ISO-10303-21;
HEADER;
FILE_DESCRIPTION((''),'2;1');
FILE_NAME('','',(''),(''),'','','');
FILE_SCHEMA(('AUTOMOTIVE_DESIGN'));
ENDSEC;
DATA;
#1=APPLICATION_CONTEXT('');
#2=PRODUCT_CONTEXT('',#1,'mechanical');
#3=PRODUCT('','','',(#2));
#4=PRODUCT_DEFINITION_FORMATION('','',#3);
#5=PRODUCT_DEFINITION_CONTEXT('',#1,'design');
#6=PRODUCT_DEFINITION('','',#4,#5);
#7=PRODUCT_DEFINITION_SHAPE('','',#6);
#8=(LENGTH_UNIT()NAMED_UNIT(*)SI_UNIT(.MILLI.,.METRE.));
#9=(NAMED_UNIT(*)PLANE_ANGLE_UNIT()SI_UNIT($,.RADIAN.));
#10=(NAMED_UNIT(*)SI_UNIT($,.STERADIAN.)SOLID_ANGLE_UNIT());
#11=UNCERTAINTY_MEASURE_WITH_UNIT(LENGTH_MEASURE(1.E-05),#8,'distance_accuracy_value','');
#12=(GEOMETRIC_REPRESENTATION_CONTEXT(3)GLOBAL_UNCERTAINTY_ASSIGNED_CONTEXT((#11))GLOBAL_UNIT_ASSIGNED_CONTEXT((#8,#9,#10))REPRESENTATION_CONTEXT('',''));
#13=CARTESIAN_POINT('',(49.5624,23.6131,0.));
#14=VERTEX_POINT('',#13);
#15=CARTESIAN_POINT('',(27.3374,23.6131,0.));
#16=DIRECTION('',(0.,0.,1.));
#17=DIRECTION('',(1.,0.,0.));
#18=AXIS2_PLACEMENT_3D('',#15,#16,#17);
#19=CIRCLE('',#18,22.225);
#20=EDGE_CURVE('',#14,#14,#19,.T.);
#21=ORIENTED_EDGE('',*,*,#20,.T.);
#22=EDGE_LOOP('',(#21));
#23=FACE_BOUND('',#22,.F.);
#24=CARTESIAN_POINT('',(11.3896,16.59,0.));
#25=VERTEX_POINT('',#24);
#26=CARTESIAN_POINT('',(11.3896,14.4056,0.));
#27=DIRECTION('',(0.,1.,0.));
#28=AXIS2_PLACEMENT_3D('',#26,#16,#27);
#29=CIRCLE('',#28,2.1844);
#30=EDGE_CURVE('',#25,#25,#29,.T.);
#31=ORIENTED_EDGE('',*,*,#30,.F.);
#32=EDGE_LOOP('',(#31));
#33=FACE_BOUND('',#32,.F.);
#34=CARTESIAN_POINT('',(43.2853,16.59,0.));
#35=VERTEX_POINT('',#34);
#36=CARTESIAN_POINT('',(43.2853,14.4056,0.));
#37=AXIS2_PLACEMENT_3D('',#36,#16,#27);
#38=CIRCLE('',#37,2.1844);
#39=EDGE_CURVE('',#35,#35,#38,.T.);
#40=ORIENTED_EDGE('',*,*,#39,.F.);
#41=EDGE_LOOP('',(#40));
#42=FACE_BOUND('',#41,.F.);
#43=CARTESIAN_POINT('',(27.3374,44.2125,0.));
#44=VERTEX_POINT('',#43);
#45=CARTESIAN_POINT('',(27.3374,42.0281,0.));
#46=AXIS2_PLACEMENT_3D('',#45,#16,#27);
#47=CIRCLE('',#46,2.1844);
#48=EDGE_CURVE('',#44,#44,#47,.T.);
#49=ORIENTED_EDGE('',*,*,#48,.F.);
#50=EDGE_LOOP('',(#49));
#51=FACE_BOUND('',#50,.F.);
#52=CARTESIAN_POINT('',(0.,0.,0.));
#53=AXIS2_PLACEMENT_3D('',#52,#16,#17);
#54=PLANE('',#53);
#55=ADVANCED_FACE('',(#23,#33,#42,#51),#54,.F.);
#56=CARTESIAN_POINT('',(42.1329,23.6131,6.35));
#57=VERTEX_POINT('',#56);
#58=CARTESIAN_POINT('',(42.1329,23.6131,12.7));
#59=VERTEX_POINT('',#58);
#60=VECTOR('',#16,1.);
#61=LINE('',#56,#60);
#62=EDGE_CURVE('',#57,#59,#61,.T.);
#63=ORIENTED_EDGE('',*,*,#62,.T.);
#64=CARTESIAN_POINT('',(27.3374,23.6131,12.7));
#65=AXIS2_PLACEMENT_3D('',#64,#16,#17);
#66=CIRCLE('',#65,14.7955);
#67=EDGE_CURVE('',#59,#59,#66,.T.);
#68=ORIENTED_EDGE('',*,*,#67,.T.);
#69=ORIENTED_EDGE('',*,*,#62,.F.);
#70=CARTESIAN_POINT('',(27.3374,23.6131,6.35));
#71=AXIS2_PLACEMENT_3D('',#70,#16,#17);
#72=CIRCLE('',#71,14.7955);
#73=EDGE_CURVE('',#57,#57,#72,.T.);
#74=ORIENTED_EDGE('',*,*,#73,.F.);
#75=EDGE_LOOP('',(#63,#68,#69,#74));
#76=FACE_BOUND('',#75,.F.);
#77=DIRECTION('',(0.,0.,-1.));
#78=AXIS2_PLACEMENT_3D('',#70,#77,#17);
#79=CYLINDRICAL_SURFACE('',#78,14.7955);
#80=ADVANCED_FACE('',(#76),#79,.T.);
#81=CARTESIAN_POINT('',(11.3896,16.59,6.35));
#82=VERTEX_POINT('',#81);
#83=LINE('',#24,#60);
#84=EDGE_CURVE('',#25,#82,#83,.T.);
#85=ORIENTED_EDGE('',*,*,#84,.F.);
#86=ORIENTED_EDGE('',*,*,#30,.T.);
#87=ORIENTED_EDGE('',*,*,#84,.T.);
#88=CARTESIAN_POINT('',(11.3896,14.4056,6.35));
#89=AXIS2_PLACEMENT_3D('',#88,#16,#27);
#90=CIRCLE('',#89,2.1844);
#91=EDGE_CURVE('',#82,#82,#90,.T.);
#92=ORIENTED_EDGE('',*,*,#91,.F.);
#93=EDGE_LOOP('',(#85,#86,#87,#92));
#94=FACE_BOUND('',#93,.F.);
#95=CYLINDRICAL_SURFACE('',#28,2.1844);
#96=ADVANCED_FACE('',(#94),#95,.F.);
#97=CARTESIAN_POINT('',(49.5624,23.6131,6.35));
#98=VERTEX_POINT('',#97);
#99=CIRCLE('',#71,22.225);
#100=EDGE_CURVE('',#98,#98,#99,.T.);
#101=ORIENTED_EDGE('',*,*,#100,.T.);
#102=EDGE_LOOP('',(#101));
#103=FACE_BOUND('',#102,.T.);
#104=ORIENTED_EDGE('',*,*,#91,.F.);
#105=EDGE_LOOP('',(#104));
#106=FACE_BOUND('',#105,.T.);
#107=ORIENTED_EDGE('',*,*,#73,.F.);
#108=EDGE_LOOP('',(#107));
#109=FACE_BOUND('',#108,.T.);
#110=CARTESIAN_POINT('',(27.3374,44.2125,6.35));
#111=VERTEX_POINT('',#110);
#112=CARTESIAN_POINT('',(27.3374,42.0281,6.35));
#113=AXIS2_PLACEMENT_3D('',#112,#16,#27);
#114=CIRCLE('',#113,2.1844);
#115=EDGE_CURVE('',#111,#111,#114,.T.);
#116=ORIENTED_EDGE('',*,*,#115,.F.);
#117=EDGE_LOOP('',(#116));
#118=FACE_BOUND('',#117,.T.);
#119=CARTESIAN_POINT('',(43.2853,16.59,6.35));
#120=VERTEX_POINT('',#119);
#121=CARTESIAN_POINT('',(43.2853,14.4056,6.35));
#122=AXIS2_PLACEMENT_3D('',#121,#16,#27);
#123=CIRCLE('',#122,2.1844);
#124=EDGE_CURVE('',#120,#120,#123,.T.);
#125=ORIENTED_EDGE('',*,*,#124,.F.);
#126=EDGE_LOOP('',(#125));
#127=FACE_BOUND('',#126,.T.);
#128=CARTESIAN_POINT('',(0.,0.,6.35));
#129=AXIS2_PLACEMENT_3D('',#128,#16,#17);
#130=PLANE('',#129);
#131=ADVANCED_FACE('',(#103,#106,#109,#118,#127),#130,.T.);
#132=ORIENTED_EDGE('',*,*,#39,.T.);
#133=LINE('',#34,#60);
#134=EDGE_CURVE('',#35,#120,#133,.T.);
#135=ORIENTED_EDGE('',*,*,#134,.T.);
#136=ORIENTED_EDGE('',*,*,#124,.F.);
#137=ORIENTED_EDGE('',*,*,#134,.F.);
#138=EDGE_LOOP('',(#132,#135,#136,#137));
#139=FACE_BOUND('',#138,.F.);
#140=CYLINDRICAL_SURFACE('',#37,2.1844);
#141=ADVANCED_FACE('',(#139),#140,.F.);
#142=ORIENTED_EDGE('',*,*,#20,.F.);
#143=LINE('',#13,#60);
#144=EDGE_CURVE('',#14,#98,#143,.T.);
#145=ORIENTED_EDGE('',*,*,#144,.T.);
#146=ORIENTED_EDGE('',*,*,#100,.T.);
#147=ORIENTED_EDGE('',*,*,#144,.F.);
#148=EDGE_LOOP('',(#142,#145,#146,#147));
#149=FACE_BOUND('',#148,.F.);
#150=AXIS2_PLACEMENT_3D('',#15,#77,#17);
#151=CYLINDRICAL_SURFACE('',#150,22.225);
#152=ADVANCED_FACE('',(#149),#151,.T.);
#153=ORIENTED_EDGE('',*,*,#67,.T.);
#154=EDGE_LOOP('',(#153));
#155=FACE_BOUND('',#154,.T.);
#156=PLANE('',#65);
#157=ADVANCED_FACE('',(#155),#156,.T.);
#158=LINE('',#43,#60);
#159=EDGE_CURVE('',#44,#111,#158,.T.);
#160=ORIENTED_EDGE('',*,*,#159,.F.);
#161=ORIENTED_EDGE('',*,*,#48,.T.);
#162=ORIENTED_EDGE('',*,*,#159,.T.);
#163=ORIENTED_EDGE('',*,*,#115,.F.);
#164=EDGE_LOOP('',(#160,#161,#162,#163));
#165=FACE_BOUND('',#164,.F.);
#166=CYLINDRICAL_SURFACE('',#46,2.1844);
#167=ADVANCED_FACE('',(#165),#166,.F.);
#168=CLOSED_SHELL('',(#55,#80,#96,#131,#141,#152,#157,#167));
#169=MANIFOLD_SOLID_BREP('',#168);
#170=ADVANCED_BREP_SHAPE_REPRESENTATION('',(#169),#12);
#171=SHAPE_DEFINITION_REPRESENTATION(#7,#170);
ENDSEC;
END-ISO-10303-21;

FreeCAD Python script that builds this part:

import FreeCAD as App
import Part
import Sketcher

V = App.Vector
Q = App.Units.Quantity

doc = App.newDocument("Part")
body = doc.addObject("PartDesign::Body", "Body")

# Sketch on XY plane
sketch1 = body.newObject("Sketcher::SketchObject", "Sketch")
sketch1.AttachmentSupport = (doc.getObject("XY_Plane"), [""])
sketch1.MapMode = "FlatFace"
sketch1.addGeometry(Part.Circle(V(27, 24, 0), V(0, 0, 1), 22), False)
sketch1.addConstraint(Sketcher.Constraint("Diameter", 0, Q("1.75 in")))
sketch1.addConstraint(Sketcher.Constraint("DistanceX", -1, 1, 0, 3, 27.3374))
sketch1.addConstraint(Sketcher.Constraint("DistanceY", -1, 1, 0, 3, 23.613))
pad1 = body.newObject("PartDesign::Pad", "Pad")
pad1.Profile = sketch1
pad1.Length = Q("0.25 in")

# Sketch on XY plane
sketch2 = body.newObject("Sketcher::SketchObject", "Sketch001")
sketch2.AttachmentSupport = (doc.getObject("XY_Plane"), [""])
sketch2.MapMode = "FlatFace"
sketch2.AttachmentOffset = App.Placement(V(0, 0, 0.25 * 25.4), App.Rotation())
sketch2.addGeometry(Part.Circle(V(27, 24, 0), V(0, 0, 1), 15), False)
sketch2.addConstraint(Sketcher.Constraint("Diameter", 0, Q("1.165 in")))
sketch2.addConstraint(Sketcher.Constraint("DistanceX", -1, 1, 0, 3, 27.3374))
sketch2.addConstraint(Sketcher.Constraint("DistanceY", -1, 1, 0, 3, 23.613))
pad2 = body.newObject("PartDesign::Pad", "Pad001")
pad2.Profile = sketch2
pad2.Length = Q("0.25 in")

# Sketch on XY plane
sketch3 = body.newObject("Sketcher::SketchObject", "Sketch002")
sketch3.AttachmentSupport = (doc.getObject("XY_Plane"), [""])
sketch3.MapMode = "FlatFace"
sketch3.addGeometry(Part.Circle(V(27.3, 42, 0), V(0, 0, 1), 2.2), False)
sketch3.addGeometry(Part.Circle(V(43.3, 14.4, 0), V(0, 0, 1), 2.2), False)
sketch3.addGeometry(Part.Circle(V(11.4, 14.4, 0), V(0, 0, 1), 2.2), False)
sketch3.addConstraint(Sketcher.Constraint("Equal", 0, 1))
sketch3.addConstraint(Sketcher.Constraint("Equal", 1, 2))
sketch3.addConstraint(Sketcher.Constraint("Horizontal", 1, 3, 2, 3))
sketch3.addConstraint(Sketcher.Constraint("Diameter", 0, Q("0.172 in")))
sketch3.addConstraint(Sketcher.Constraint("DistanceX", -1, 1, 2, 3, Q("0.4484 in")))
sketch3.addConstraint(Sketcher.Constraint("DistanceY", 1, 3, 0, 3, Q("1.0875 in")))
sketch3.addConstraint(Sketcher.Constraint("DistanceX", -1, 1, 0, 3, 27.3374))
sketch3.addConstraint(Sketcher.Constraint("DistanceY", -1, 1, 0, 3, 42.028))
sketch3.addConstraint(Sketcher.Constraint("DistanceX", -1, 1, 1, 3, 43.2853))
doc.recompute()
hole = body.newObject("PartDesign::Hole", "Hole")
hole.Profile = sketch3
hole.ThreadType = "None"
hole.Diameter = Q("0.172 in")
hole.DepthType = "Dimension"
hole.Depth = Q("1 in")
hole.DrillPoint = "Angled"
hole.DrillPointAngle = 118
hole.Reversed = True

doc.recompute()
